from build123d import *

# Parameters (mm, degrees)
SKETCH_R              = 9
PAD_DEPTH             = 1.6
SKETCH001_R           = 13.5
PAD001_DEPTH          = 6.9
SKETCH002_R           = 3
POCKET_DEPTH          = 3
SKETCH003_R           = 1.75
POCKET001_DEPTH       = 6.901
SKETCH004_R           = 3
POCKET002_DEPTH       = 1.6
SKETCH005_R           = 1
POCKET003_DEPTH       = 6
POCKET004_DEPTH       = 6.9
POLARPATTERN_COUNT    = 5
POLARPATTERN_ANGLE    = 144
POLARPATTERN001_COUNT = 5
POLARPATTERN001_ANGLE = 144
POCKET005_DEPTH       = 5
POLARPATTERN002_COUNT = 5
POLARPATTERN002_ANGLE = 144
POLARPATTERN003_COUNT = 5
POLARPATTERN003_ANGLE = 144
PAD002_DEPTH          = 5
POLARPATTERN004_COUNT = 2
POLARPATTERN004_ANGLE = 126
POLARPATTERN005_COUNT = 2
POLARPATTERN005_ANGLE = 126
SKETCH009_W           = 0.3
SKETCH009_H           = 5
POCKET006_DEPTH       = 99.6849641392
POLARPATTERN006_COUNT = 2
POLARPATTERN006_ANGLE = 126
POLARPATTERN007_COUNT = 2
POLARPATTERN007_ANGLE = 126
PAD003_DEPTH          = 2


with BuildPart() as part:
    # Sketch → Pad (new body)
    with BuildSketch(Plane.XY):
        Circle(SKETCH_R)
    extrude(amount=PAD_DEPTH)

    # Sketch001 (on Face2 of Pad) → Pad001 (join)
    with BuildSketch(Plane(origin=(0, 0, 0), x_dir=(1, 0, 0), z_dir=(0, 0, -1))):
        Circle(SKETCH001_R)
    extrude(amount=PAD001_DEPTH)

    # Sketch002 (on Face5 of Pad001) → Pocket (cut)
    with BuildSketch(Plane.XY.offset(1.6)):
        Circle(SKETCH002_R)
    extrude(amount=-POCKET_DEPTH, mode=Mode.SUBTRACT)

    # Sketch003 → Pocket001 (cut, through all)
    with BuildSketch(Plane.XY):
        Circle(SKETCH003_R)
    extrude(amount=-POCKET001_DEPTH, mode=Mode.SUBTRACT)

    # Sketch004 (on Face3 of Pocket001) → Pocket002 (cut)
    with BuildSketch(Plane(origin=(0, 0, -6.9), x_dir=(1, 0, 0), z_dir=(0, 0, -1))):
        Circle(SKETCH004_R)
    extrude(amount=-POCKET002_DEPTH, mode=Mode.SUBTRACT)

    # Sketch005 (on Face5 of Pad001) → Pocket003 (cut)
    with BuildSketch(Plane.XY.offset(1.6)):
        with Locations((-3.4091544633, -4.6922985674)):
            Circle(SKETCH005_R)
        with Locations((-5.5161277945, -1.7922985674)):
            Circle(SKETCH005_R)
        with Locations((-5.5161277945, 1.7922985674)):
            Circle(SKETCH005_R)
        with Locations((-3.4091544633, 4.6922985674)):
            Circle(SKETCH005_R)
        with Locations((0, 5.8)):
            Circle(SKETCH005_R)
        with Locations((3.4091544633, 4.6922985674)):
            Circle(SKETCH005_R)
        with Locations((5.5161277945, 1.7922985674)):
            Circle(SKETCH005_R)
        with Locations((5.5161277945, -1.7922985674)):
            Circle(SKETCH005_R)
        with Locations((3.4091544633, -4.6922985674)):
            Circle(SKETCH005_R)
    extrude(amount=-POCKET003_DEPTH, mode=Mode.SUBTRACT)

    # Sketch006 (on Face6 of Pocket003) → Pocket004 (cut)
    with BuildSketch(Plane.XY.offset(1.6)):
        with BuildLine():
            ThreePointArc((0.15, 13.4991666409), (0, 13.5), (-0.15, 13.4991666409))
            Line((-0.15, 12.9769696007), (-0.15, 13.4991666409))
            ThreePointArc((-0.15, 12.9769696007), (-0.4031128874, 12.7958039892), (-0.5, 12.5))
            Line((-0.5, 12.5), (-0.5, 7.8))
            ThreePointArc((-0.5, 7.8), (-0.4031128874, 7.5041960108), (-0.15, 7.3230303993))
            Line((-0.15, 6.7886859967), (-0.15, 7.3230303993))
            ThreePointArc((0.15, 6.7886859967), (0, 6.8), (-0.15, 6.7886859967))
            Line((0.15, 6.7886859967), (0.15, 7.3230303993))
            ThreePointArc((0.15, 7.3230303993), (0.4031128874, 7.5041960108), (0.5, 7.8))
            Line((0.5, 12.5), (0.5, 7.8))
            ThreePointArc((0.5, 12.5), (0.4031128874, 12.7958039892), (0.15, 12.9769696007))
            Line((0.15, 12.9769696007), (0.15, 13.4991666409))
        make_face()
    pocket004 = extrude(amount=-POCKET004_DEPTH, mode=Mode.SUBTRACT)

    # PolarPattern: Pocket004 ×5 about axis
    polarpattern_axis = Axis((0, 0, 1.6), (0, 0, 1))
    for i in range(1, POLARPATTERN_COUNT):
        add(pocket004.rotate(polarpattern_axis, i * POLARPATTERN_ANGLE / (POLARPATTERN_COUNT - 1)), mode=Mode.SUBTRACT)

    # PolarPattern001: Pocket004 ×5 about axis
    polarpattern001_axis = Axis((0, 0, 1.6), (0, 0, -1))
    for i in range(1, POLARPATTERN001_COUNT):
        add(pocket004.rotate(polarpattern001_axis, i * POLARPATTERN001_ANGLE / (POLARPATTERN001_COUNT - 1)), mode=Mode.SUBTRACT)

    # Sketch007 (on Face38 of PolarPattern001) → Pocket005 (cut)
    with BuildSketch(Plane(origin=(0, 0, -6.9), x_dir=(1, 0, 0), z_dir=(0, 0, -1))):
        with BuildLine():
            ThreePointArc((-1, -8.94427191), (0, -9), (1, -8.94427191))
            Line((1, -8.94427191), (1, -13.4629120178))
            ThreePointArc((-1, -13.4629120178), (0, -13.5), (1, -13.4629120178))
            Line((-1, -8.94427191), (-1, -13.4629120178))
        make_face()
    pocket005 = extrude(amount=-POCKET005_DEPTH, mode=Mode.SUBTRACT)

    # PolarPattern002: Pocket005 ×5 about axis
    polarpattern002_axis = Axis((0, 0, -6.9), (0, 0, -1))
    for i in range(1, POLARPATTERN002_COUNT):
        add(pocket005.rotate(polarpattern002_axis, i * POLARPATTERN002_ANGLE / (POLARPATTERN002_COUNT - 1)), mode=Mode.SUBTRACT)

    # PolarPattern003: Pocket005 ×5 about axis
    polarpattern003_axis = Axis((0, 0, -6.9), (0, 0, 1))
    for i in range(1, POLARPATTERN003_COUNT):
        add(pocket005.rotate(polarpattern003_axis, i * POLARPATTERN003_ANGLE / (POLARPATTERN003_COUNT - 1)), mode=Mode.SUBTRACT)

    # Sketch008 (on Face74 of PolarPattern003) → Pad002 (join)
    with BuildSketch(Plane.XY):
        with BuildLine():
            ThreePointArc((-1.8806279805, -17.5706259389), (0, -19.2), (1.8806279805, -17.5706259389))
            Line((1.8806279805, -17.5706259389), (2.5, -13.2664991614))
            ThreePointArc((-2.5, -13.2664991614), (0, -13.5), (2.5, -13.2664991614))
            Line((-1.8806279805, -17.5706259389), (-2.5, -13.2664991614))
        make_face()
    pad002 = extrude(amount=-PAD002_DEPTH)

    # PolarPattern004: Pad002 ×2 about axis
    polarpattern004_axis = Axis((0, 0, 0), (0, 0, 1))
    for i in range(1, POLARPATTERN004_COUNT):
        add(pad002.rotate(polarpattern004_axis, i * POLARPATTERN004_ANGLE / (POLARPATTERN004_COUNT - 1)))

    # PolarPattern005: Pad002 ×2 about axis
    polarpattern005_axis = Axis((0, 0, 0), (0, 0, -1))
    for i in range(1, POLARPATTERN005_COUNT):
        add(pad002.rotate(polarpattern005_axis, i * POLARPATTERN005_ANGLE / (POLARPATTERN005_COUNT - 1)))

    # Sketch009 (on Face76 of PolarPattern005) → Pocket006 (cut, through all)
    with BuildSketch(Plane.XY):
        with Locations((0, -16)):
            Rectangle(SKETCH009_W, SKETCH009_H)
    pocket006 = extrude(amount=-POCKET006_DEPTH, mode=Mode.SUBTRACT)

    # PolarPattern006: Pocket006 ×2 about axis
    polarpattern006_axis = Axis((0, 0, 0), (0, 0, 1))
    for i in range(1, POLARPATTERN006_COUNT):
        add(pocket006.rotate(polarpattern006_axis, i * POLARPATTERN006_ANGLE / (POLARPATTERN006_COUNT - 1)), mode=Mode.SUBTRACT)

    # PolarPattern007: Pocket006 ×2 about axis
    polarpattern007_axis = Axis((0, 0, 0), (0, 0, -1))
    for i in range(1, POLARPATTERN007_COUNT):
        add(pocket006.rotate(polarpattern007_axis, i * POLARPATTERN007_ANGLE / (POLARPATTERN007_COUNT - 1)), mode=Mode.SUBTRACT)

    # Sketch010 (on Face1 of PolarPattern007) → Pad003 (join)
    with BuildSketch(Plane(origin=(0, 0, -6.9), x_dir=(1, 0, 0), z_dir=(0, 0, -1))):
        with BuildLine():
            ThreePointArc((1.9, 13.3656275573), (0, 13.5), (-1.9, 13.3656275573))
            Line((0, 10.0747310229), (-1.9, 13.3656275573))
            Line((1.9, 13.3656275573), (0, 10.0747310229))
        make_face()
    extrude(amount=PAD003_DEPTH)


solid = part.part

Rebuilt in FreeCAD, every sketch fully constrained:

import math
import FreeCAD as App
import Part
import Sketcher
Q = App.Units.Quantity

doc = App.newDocument("Part")
body = doc.addObject("PartDesign::Body", "Body")

# Sketch on XY plane
sketch1 = body.newObject("Sketcher::SketchObject", "Sketch")
sketch1.AttachmentSupport = (doc.getObject("XY_Plane"), [""])
sketch1.MapMode = "FlatFace"
sketch1.addGeometry(Part.Circle(App.Vector(0, 0, 0), App.Vector(0, 0, 1), 9), False)
sketch1.addConstraint([
    Sketcher.Constraint("Coincident", 0, 3, -1, 1),
    Sketcher.Constraint("Diameter", 0, Q("18 mm")),
])
pad1 = body.newObject("PartDesign::Pad", "Pad")
pad1.Profile = sketch1
pad1.Length = 1.6

# Sketch on XY plane
sketch2 = body.newObject("Sketcher::SketchObject", "Sketch001")
sketch2.AttachmentSupport = (doc.getObject("XY_Plane"), [""])
sketch2.MapMode = "FlatFace"
sketch2.addGeometry(Part.Circle(App.Vector(0, 0, 0), App.Vector(0, 0, 1), 13.5), False)
sketch2.addConstraint([
    Sketcher.Constraint("Coincident", 0, 3, -1, 1),
    Sketcher.Constraint("Diameter", 0, Q("27 mm")),
])
pad2 = body.newObject("PartDesign::Pad", "Pad001")
pad2.Profile = sketch2
pad2.Length = 6.9
pad2.Reversed = True

# Sketch on XY plane
sketch3 = body.newObject("Sketcher::SketchObject", "Sketch002")
sketch3.AttachmentSupport = (doc.getObject("XY_Plane"), [""])
sketch3.MapMode = "FlatFace"
sketch3.AttachmentOffset = App.Placement(App.Vector(0, 0, 1.6), App.Rotation())
sketch3.addGeometry(Part.Circle(App.Vector(0, 0, 0), App.Vector(0, 0, 1), 3), False)
sketch3.addConstraint([
    Sketcher.Constraint("Coincident", 0, 3, -1, 1),
    Sketcher.Constraint("Diameter", 0, Q("6 mm")),
])
pocket1 = body.newObject("PartDesign::Pocket", "Pocket")
pocket1.Profile = sketch3
pocket1.Length = 3

# Sketch on XY plane
sketch4 = body.newObject("Sketcher::SketchObject", "Sketch003")
sketch4.AttachmentSupport = (doc.getObject("XY_Plane"), [""])
sketch4.MapMode = "FlatFace"
sketch4.addGeometry(Part.Circle(App.Vector(0, 0, 0), App.Vector(0, 0, 1), 1.75), False)
sketch4.addConstraint([
    Sketcher.Constraint("Coincident", 0, 3, -1, 1),
    Sketcher.Constraint("Diameter", 0, Q("3.5 mm")),
])
pocket2 = body.newObject("PartDesign::Pocket", "Pocket001")
pocket2.Profile = sketch4
pocket2.Type = "ThroughAll"

# Sketch on XY plane
sketch5 = body.newObject("Sketcher::SketchObject", "Sketch004")
sketch5.AttachmentSupport = (doc.getObject("XY_Plane"), [""])
sketch5.MapMode = "FlatFace"
sketch5.AttachmentOffset = App.Placement(App.Vector(0, 0, -6.9), App.Rotation())
sketch5.addGeometry(Part.Circle(App.Vector(0, 0, 0), App.Vector(0, 0, 1), 3), False)
sketch5.addConstraint([
    Sketcher.Constraint("Coincident", 0, 3, -1, 1),
    Sketcher.Constraint("Diameter", 0, Q("6 mm")),
])
pocket3 = body.newObject("PartDesign::Pocket", "Pocket002")
pocket3.Profile = sketch5
pocket3.Length = 1.6
pocket3.Reversed = True

# Sketch on XY plane
sketch6 = body.newObject("Sketcher::SketchObject", "Sketch005")
sketch6.AttachmentSupport = (doc.getObject("XY_Plane"), [""])
sketch6.MapMode = "FlatFace"
sketch6.AttachmentOffset = App.Placement(App.Vector(0, 0, 1.6), App.Rotation())
sketch6.addGeometry([
    Part.Circle(App.Vector(-3.409154, -4.692299, 0), App.Vector(0, 0, 1), 1),  # 0
    Part.Circle(App.Vector(-5.516128, -1.792299, 0), App.Vector(0, 0, 1), 1),  # 1
    Part.Circle(App.Vector(-5.516128, 1.792299, 0), App.Vector(0, 0, 1), 1),  # 2
    Part.Circle(App.Vector(-3.409154, 4.692299, 0), App.Vector(0, 0, 1), 1),  # 3
    Part.Circle(App.Vector(0, 5.8, 0), App.Vector(0, 0, 1), 1),  # 4
    Part.Circle(App.Vector(3.409154, 4.692299, 0), App.Vector(0, 0, 1), 1),  # 5
    Part.Circle(App.Vector(5.516128, 1.792299, 0), App.Vector(0, 0, 1), 1),  # 6
    Part.Circle(App.Vector(5.516128, -1.792299, 0), App.Vector(0, 0, 1), 1),  # 7
    Part.Circle(App.Vector(3.409154, -4.692299, 0), App.Vector(0, 0, 1), 1),  # 8
], False)
sketch6.addConstraint([
    Sketcher.Constraint("Equal", 0, 1),
    Sketcher.Constraint("Equal", 1, 2),
    Sketcher.Constraint("Equal", 2, 3),
    Sketcher.Constraint("Equal", 3, 4),
    Sketcher.Constraint("Equal", 4, 5),
    Sketcher.Constraint("Equal", 5, 6),
    Sketcher.Constraint("Equal", 6, 7),
    Sketcher.Constraint("Equal", 7, 8),
    Sketcher.Constraint("Symmetric", 0, 3, 5, 3, -1, 1),
    Sketcher.Constraint("Symmetric", 1, 3, 6, 3, -1, 1),
    Sketcher.Constraint("Symmetric", 2, 3, 7, 3, -1, 1),
    Sketcher.Constraint("Symmetric", 3, 3, 8, 3, -1, 1),
    Sketcher.Constraint("Symmetric", 3, 3, 5, 3, -2),
    Sketcher.Constraint("Symmetric", 2, 3, 6, 3, -2),
    Sketcher.Constraint("PointOnObject", 4, 3, -2),
    Sketcher.Constraint("Diameter", 0, Q("2 mm")),
    Sketcher.Constraint("DistanceY", -1, 1, 4, 3, Q("5.8 mm")),
    Sketcher.Constraint("DistanceY", 0, 3, 1, 3, Q("2.9 mm")),
    Sketcher.Constraint("DistanceY", 0, 3, -1, 1, Q("4.692299 mm")),
    Sketcher.Constraint("DistanceX", 3, 3, 5, 3, Q("6.818309 mm")),
    Sketcher.Constraint("DistanceX", 1, 3, -1, 1, Q("5.516128 mm")),
])
pocket4 = body.newObject("PartDesign::Pocket", "Pocket003")
pocket4.Profile = sketch6
pocket4.Length = 6

# Sketch on XY plane
sketch7 = body.newObject("Sketcher::SketchObject", "Sketch006")
sketch7.AttachmentSupport = (doc.getObject("XY_Plane"), [""])
sketch7.MapMode = "FlatFace"
sketch7.AttachmentOffset = App.Placement(App.Vector(0, 0, 1.6), App.Rotation())
sketch7.addGeometry([
    Part.ArcOfCircle(Part.Circle(App.Vector(0, 0.000001, 0), App.Vector(0, 0, 1), 13.499999), math.radians(89.363367), math.radians(90.636633)),  # 0
    Part.LineSegment(App.Vector(-0.15, 13.499167, 0), App.Vector(-0.15, 12.97697, 0)),  # 1
    Part.ArcOfCircle(Part.Circle(App.Vector(0, 12.5, 0), App.Vector(0, 0, 1), 0.5), math.radians(107.457603), math.radians(180)),  # 2
    Part.LineSegment(App.Vector(-0.5, 12.5, 0), App.Vector(-0.5, 7.8, 0)),  # 3
    Part.ArcOfCircle(Part.Circle(App.Vector(0, 7.8, 0), App.Vector(0, 0, 1), 0.5), math.radians(180), math.radians(252.542397)),  # 4
    Part.LineSegment(App.Vector(-0.15, 7.32303, 0), App.Vector(-0.15, 6.788686, 0)),  # 5
    Part.ArcOfCircle(Part.Circle(App.Vector(0, 5.8, 0), App.Vector(0, 0, 1), 1), math.radians(81.373073), math.radians(98.626927)),  # 6
    Part.LineSegment(App.Vector(0.15, 6.788686, 0), App.Vector(0.15, 7.32303, 0)),  # 7
    Part.ArcOfCircle(Part.Circle(App.Vector(0, 7.8, 0), App.Vector(0, 0, 1), 0.5), math.radians(-72.542397), math.radians(0)),  # 8
    Part.LineSegment(App.Vector(0.5, 7.8, 0), App.Vector(0.5, 12.5, 0)),  # 9
    Part.ArcOfCircle(Part.Circle(App.Vector(0, 12.5, 0), App.Vector(0, 0, 1), 0.5), math.radians(0), math.radians(72.542397)),  # 10
    Part.LineSegment(App.Vector(0.15, 12.97697, 0), App.Vector(0.15, 13.499167, 0)),  # 11
], False)
sketch7.addConstraint([
    Sketcher.Constraint("Coincident", 0, 2, 1, 1),
    Sketcher.Constraint("Coincident", 1, 2, 2, 1),
    Sketcher.Constraint("Tangent", 2, 2, 3, 1),
    Sketcher.Constraint("Tangent", 3, 2, 4, 1),
    Sketcher.Constraint("Coincident", 4, 2, 5, 1),
    Sketcher.Constraint("Coincident", 5, 2, 6, 2),
    Sketcher.Constraint("Coincident", 6, 1, 7, 1),
    Sketcher.Constraint("Coincident", 7, 2, 8, 1),
    Sketcher.Constraint("Tangent", 8, 2, 9, 1),
    Sketcher.Constraint("Tangent", 9, 2, 10, 1),
    Sketcher.Constraint("Coincident", 10, 2, 11, 1),
    Sketcher.Constraint("Coincident", 11, 2, 0, 1),
    Sketcher.Constraint("Vertical", 1),
    Sketcher.Constraint("Vertical", 3),
    Sketcher.Constraint("Vertical", 5),
    Sketcher.Constraint("Vertical", 7),
    Sketcher.Constraint("Vertical", 9),
    Sketcher.Constraint("Vertical", 11),
    Sketcher.Constraint("Coincident", 0, 3, -1, 1),
    Sketcher.Constraint("Coincident", 8, 3, 4, 3),
    Sketcher.Constraint("Coincident", 10, 3, 2, 3),
    Sketcher.Constraint("Equal", 2, 4),
    Sketcher.Constraint("Equal", 4, 8),
    Sketcher.Constraint("Symmetric", 5, 2, 6, 1, -2),
    Sketcher.Constraint("Symmetric", 1, 2, 10, 2, -2),
    Sketcher.Constraint("Vertical", 1, 2, 4, 2),
    Sketcher.Constraint("Radius", 6, Q("1 mm")),
    Sketcher.Constraint("Radius", 0, Q("13.499999 mm")),
    Sketcher.Constraint("Radius", 2, Q("0.5 mm")),
    Sketcher.Constraint("DistanceY", 3, 2, 3, 1, Q("4.7 mm")),
    Sketcher.Constraint("DistanceY", 6, 3, 4, 3, Q("2 mm")),
    Sketcher.Constraint("DistanceY", -1, 1, 2, 3, Q("12.5 mm")),
    Sketcher.Constraint("DistanceX", 5, 2, 6, 1, Q("0.3 mm")),
])
pocket5 = body.newObject("PartDesign::Pocket", "Pocket004")
pocket5.Profile = sketch7
pocket5.Length = 6.9
doc.recompute()

polarpattern = body.newObject("PartDesign::PolarPattern", "PolarPattern")
polarpattern.Originals = [pocket5]
polarpattern.Axis = (doc.getObject("Z_Axis"), [""])
polarpattern.Angle = 144
polarpattern.Occurrences = 5
body.Tip = polarpattern
doc.recompute()

polarpattern2 = body.newObject("PartDesign::PolarPattern", "PolarPattern001")
polarpattern2.Originals = [pocket5]
polarpattern2.Axis = (doc.getObject("Z_Axis"), [""])
polarpattern2.Angle = 144
polarpattern2.Occurrences = 5
polarpattern2.Reversed = True
body.Tip = polarpattern2

# Sketch on XY plane
sketch8 = body.newObject("Sketcher::SketchObject", "Sketch007")
sketch8.AttachmentSupport = (doc.getObject("XY_Plane"), [""])
sketch8.MapMode = "FlatFace"
sketch8.AttachmentOffset = App.Placement(App.Vector(0, 0, -6.9), App.Rotation())
sketch8.addGeometry([
    Part.ArcOfCircle(Part.Circle(App.Vector(0, 0, 0), App.Vector(0, 0, 1), 9), math.radians(83.62063), math.radians(96.37937)),
    Part.LineSegment(App.Vector(-1, 8.944272, 0), App.Vector(-1, 13.462912, 0)),
    Part.ArcOfCircle(Part.Circle(App.Vector(0, 0, 0), App.Vector(0, 0, 1), 13.5), math.radians(85.751977), math.radians(94.248023)),
    Part.LineSegment(App.Vector(1, 13.462912, 0), App.Vector(1, 8.944272, 0)),
], False)
sketch8.addConstraint([
    Sketcher.Constraint("Coincident", 0, 2, 1, 1),
    Sketcher.Constraint("Coincident", 1, 2, 2, 2),
    Sketcher.Constraint("Coincident", 2, 1, 3, 1),
    Sketcher.Constraint("Coincident", 3, 2, 0, 1),
    Sketcher.Constraint("Vertical", 1),
    Sketcher.Constraint("Vertical", 3),
    Sketcher.Constraint("Coincident", 0, 3, -1, 1),
    Sketcher.Constraint("Coincident", 2, 3, -1, 1),
    Sketcher.Constraint("Horizontal", 1, 2, 2, 1),
    Sketcher.Constraint("Radius", 0, Q("9 mm")),
    Sketcher.Constraint("Radius", 2, Q("13.5 mm")),
    Sketcher.Constraint("DistanceX", 0, 2, -1, 1, Q("1 mm")),
])
pocket6 = body.newObject("PartDesign::Pocket", "Pocket005")
pocket6.Profile = sketch8
pocket6.Length = 5
pocket6.Reversed = True
doc.recompute()

polarpattern3 = body.newObject("PartDesign::PolarPattern", "PolarPattern002")
polarpattern3.Originals = [pocket6]
polarpattern3.Axis = (doc.getObject("Z_Axis"), [""])
polarpattern3.Angle = 144
polarpattern3.Occurrences = 5
polarpattern3.Reversed = True
body.Tip = polarpattern3
doc.recompute()

polarpattern4 = body.newObject("PartDesign::PolarPattern", "PolarPattern003")
polarpattern4.Originals = [pocket6]
polarpattern4.Axis = (doc.getObject("Z_Axis"), [""])
polarpattern4.Angle = 144
polarpattern4.Occurrences = 5
body.Tip = polarpattern4

# Sketch on XY plane
sketch9 = body.newObject("Sketcher::SketchObject", "Sketch008")
sketch9.AttachmentSupport = (doc.getObject("XY_Plane"), [""])
sketch9.MapMode = "FlatFace"
sketch9.addGeometry([
    Part.ArcOfCircle(Part.Circle(App.Vector(0, -17.3, 0), App.Vector(0, 0, 1), 1.9), math.radians(-171.811243), math.radians(-8.188757)),
    Part.LineSegment(App.Vector(1.880628, -17.570626, 0), App.Vector(2.5, -13.266499, 0)),
    Part.ArcOfCircle(Part.Circle(App.Vector(0, 0, 0), App.Vector(0, 0, 1), 13.5), math.radians(-100.671929), math.radians(-79.328071)),
    Part.LineSegment(App.Vector(-2.5, -13.266499, 0), App.Vector(-1.880628, -17.570626, 0)),
], False)
sketch9.addConstraint([
    Sketcher.Constraint("Tangent", 0, 2, 1, 1),
    Sketcher.Constraint("Coincident", 1, 2, 2, 2),
    Sketcher.Constraint("Coincident", 2, 1, 3, 1),
    Sketcher.Constraint("Tangent", 3, 2, 0, 1),
    Sketcher.Constraint("Coincident", 2, 3, -1, 1),
    Sketcher.Constraint("Symmetric", 0, 2, 3, 2, -2),
    Sketcher.Constraint("Radius", 0, Q("1.9 mm")),
    Sketcher.Constraint("Radius", 2, Q("13.5 mm")),
    Sketcher.Constraint("DistanceX", 2, 1, 1, 2, Q("5 mm")),
    Sketcher.Constraint("DistanceY", 0, 3, -1, 1, Q("17.3 mm")),
])
pad3 = body.newObject("PartDesign::Pad", "Pad002")
pad3.Profile = sketch9
pad3.Length = 5
pad3.Reversed = True
doc.recompute()

polarpattern5 = body.newObject("PartDesign::PolarPattern", "PolarPattern004")
polarpattern5.Originals = [pad3]
polarpattern5.Axis = (doc.getObject("Z_Axis"), [""])
polarpattern5.Angle = 126
polarpattern5.Occurrences = 2
body.Tip = polarpattern5
doc.recompute()

polarpattern6 = body.newObject("PartDesign::PolarPattern", "PolarPattern005")
polarpattern6.Originals = [pad3]
polarpattern6.Axis = (doc.getObject("Z_Axis"), [""])
polarpattern6.Angle = 126
polarpattern6.Occurrences = 2
polarpattern6.Reversed = True
body.Tip = polarpattern6

# Sketch on XY plane
sketch10 = body.newObject("Sketcher::SketchObject", "Sketch009")
sketch10.AttachmentSupport = (doc.getObject("XY_Plane"), [""])
sketch10.MapMode = "FlatFace"
sketch10.addGeometry([
    Part.LineSegment(App.Vector(-0.15, -13.5, 0), App.Vector(-0.15, -18.5, 0)),
    Part.LineSegment(App.Vector(-0.15, -18.5, 0), App.Vector(0.15, -18.5, 0)),
    Part.LineSegment(App.Vector(0.15, -18.5, 0), App.Vector(0.15, -13.5, 0)),
    Part.LineSegment(App.Vector(0.15, -13.5, 0), App.Vector(-0.15, -13.5, 0)),
], False)
sketch10.addConstraint([
    Sketcher.Constraint("Coincident", 0, 2, 1, 1),
    Sketcher.Constraint("Coincident", 1, 2, 2, 1),
    Sketcher.Constraint("Coincident", 2, 2, 3, 1),
    Sketcher.Constraint("Coincident", 3, 2, 0, 1),
    Sketcher.Constraint("Vertical", 0),
    Sketcher.Constraint("Horizontal", 1),
    Sketcher.Constraint("Vertical", 2),
    Sketcher.Constraint("Horizontal", 3),
    Sketcher.Constraint("DistanceY", 0, 2, 0, 1, Q("5 mm")),
    Sketcher.Constraint("DistanceX", 1, 1, 1, 2, Q("0.3 mm")),
    Sketcher.Constraint("DistanceY", 0, 2, -1, 1, Q("18.5 mm")),
    Sketcher.Constraint("DistanceX", 0, 2, -1, 1, Q("0.15 mm")),
])
pocket7 = body.newObject("PartDesign::Pocket", "Pocket006")
pocket7.Profile = sketch10
pocket7.Type = "ThroughAll"
doc.recompute()

polarpattern7 = body.newObject("PartDesign::PolarPattern", "PolarPattern006")
polarpattern7.Originals = [pocket7]
polarpattern7.Axis = (doc.getObject("Z_Axis"), [""])
polarpattern7.Angle = 126
polarpattern7.Occurrences = 2
body.Tip = polarpattern7
doc.recompute()

polarpattern8 = body.newObject("PartDesign::PolarPattern", "PolarPattern007")
polarpattern8.Originals = [pocket7]
polarpattern8.Axis = (doc.getObject("Z_Axis"), [""])
polarpattern8.Angle = 126
polarpattern8.Occurrences = 2
polarpattern8.Reversed = True
body.Tip = polarpattern8

# Sketch on XY plane
sketch11 = body.newObject("Sketcher::SketchObject", "Sketch010")
sketch11.AttachmentSupport = (doc.getObject("XY_Plane"), [""])
sketch11.MapMode = "FlatFace"
sketch11.AttachmentOffset = App.Placement(App.Vector(0, 0, -6.9), App.Rotation())
sketch11.addGeometry([
    Part.ArcOfCircle(Part.Circle(App.Vector(0, 0, 0), App.Vector(0, 0, 1), 13.5), math.radians(-98.090712), math.radians(-81.909288)),
    Part.LineSegment(App.Vector(-1.9, -13.365628, 0), App.Vector(0, -10.074731, 0)),
    Part.LineSegment(App.Vector(0, -10.074731, 0), App.Vector(1.9, -13.365628, 0)),
], False)
sketch11.addConstraint([
    Sketcher.Constraint("Coincident", 0, 1, 1, 1),
    Sketcher.Constraint("Coincident", 1, 2, 2, 1),
    Sketcher.Constraint("Coincident", 2, 2, 0, 2),
    Sketcher.Constraint("Coincident", 0, 3, -1, 1),
    Sketcher.Constraint("PointOnObject", 1, 2, -2),
    Sketcher.Constraint("Horizontal", 0, 1, 2, 2),
    Sketcher.Constraint("Radius", 0, Q("13.5 mm")),
    Sketcher.Constraint("Angle", 1, Q("60 deg")),
    Sketcher.Constraint("Distance", 1, Q("3.8 mm")),
])
pad4 = body.newObject("PartDesign::Pad", "Pad003")
pad4.Profile = sketch11
pad4.Length = 2
pad4.Reversed = True

doc.recompute()
